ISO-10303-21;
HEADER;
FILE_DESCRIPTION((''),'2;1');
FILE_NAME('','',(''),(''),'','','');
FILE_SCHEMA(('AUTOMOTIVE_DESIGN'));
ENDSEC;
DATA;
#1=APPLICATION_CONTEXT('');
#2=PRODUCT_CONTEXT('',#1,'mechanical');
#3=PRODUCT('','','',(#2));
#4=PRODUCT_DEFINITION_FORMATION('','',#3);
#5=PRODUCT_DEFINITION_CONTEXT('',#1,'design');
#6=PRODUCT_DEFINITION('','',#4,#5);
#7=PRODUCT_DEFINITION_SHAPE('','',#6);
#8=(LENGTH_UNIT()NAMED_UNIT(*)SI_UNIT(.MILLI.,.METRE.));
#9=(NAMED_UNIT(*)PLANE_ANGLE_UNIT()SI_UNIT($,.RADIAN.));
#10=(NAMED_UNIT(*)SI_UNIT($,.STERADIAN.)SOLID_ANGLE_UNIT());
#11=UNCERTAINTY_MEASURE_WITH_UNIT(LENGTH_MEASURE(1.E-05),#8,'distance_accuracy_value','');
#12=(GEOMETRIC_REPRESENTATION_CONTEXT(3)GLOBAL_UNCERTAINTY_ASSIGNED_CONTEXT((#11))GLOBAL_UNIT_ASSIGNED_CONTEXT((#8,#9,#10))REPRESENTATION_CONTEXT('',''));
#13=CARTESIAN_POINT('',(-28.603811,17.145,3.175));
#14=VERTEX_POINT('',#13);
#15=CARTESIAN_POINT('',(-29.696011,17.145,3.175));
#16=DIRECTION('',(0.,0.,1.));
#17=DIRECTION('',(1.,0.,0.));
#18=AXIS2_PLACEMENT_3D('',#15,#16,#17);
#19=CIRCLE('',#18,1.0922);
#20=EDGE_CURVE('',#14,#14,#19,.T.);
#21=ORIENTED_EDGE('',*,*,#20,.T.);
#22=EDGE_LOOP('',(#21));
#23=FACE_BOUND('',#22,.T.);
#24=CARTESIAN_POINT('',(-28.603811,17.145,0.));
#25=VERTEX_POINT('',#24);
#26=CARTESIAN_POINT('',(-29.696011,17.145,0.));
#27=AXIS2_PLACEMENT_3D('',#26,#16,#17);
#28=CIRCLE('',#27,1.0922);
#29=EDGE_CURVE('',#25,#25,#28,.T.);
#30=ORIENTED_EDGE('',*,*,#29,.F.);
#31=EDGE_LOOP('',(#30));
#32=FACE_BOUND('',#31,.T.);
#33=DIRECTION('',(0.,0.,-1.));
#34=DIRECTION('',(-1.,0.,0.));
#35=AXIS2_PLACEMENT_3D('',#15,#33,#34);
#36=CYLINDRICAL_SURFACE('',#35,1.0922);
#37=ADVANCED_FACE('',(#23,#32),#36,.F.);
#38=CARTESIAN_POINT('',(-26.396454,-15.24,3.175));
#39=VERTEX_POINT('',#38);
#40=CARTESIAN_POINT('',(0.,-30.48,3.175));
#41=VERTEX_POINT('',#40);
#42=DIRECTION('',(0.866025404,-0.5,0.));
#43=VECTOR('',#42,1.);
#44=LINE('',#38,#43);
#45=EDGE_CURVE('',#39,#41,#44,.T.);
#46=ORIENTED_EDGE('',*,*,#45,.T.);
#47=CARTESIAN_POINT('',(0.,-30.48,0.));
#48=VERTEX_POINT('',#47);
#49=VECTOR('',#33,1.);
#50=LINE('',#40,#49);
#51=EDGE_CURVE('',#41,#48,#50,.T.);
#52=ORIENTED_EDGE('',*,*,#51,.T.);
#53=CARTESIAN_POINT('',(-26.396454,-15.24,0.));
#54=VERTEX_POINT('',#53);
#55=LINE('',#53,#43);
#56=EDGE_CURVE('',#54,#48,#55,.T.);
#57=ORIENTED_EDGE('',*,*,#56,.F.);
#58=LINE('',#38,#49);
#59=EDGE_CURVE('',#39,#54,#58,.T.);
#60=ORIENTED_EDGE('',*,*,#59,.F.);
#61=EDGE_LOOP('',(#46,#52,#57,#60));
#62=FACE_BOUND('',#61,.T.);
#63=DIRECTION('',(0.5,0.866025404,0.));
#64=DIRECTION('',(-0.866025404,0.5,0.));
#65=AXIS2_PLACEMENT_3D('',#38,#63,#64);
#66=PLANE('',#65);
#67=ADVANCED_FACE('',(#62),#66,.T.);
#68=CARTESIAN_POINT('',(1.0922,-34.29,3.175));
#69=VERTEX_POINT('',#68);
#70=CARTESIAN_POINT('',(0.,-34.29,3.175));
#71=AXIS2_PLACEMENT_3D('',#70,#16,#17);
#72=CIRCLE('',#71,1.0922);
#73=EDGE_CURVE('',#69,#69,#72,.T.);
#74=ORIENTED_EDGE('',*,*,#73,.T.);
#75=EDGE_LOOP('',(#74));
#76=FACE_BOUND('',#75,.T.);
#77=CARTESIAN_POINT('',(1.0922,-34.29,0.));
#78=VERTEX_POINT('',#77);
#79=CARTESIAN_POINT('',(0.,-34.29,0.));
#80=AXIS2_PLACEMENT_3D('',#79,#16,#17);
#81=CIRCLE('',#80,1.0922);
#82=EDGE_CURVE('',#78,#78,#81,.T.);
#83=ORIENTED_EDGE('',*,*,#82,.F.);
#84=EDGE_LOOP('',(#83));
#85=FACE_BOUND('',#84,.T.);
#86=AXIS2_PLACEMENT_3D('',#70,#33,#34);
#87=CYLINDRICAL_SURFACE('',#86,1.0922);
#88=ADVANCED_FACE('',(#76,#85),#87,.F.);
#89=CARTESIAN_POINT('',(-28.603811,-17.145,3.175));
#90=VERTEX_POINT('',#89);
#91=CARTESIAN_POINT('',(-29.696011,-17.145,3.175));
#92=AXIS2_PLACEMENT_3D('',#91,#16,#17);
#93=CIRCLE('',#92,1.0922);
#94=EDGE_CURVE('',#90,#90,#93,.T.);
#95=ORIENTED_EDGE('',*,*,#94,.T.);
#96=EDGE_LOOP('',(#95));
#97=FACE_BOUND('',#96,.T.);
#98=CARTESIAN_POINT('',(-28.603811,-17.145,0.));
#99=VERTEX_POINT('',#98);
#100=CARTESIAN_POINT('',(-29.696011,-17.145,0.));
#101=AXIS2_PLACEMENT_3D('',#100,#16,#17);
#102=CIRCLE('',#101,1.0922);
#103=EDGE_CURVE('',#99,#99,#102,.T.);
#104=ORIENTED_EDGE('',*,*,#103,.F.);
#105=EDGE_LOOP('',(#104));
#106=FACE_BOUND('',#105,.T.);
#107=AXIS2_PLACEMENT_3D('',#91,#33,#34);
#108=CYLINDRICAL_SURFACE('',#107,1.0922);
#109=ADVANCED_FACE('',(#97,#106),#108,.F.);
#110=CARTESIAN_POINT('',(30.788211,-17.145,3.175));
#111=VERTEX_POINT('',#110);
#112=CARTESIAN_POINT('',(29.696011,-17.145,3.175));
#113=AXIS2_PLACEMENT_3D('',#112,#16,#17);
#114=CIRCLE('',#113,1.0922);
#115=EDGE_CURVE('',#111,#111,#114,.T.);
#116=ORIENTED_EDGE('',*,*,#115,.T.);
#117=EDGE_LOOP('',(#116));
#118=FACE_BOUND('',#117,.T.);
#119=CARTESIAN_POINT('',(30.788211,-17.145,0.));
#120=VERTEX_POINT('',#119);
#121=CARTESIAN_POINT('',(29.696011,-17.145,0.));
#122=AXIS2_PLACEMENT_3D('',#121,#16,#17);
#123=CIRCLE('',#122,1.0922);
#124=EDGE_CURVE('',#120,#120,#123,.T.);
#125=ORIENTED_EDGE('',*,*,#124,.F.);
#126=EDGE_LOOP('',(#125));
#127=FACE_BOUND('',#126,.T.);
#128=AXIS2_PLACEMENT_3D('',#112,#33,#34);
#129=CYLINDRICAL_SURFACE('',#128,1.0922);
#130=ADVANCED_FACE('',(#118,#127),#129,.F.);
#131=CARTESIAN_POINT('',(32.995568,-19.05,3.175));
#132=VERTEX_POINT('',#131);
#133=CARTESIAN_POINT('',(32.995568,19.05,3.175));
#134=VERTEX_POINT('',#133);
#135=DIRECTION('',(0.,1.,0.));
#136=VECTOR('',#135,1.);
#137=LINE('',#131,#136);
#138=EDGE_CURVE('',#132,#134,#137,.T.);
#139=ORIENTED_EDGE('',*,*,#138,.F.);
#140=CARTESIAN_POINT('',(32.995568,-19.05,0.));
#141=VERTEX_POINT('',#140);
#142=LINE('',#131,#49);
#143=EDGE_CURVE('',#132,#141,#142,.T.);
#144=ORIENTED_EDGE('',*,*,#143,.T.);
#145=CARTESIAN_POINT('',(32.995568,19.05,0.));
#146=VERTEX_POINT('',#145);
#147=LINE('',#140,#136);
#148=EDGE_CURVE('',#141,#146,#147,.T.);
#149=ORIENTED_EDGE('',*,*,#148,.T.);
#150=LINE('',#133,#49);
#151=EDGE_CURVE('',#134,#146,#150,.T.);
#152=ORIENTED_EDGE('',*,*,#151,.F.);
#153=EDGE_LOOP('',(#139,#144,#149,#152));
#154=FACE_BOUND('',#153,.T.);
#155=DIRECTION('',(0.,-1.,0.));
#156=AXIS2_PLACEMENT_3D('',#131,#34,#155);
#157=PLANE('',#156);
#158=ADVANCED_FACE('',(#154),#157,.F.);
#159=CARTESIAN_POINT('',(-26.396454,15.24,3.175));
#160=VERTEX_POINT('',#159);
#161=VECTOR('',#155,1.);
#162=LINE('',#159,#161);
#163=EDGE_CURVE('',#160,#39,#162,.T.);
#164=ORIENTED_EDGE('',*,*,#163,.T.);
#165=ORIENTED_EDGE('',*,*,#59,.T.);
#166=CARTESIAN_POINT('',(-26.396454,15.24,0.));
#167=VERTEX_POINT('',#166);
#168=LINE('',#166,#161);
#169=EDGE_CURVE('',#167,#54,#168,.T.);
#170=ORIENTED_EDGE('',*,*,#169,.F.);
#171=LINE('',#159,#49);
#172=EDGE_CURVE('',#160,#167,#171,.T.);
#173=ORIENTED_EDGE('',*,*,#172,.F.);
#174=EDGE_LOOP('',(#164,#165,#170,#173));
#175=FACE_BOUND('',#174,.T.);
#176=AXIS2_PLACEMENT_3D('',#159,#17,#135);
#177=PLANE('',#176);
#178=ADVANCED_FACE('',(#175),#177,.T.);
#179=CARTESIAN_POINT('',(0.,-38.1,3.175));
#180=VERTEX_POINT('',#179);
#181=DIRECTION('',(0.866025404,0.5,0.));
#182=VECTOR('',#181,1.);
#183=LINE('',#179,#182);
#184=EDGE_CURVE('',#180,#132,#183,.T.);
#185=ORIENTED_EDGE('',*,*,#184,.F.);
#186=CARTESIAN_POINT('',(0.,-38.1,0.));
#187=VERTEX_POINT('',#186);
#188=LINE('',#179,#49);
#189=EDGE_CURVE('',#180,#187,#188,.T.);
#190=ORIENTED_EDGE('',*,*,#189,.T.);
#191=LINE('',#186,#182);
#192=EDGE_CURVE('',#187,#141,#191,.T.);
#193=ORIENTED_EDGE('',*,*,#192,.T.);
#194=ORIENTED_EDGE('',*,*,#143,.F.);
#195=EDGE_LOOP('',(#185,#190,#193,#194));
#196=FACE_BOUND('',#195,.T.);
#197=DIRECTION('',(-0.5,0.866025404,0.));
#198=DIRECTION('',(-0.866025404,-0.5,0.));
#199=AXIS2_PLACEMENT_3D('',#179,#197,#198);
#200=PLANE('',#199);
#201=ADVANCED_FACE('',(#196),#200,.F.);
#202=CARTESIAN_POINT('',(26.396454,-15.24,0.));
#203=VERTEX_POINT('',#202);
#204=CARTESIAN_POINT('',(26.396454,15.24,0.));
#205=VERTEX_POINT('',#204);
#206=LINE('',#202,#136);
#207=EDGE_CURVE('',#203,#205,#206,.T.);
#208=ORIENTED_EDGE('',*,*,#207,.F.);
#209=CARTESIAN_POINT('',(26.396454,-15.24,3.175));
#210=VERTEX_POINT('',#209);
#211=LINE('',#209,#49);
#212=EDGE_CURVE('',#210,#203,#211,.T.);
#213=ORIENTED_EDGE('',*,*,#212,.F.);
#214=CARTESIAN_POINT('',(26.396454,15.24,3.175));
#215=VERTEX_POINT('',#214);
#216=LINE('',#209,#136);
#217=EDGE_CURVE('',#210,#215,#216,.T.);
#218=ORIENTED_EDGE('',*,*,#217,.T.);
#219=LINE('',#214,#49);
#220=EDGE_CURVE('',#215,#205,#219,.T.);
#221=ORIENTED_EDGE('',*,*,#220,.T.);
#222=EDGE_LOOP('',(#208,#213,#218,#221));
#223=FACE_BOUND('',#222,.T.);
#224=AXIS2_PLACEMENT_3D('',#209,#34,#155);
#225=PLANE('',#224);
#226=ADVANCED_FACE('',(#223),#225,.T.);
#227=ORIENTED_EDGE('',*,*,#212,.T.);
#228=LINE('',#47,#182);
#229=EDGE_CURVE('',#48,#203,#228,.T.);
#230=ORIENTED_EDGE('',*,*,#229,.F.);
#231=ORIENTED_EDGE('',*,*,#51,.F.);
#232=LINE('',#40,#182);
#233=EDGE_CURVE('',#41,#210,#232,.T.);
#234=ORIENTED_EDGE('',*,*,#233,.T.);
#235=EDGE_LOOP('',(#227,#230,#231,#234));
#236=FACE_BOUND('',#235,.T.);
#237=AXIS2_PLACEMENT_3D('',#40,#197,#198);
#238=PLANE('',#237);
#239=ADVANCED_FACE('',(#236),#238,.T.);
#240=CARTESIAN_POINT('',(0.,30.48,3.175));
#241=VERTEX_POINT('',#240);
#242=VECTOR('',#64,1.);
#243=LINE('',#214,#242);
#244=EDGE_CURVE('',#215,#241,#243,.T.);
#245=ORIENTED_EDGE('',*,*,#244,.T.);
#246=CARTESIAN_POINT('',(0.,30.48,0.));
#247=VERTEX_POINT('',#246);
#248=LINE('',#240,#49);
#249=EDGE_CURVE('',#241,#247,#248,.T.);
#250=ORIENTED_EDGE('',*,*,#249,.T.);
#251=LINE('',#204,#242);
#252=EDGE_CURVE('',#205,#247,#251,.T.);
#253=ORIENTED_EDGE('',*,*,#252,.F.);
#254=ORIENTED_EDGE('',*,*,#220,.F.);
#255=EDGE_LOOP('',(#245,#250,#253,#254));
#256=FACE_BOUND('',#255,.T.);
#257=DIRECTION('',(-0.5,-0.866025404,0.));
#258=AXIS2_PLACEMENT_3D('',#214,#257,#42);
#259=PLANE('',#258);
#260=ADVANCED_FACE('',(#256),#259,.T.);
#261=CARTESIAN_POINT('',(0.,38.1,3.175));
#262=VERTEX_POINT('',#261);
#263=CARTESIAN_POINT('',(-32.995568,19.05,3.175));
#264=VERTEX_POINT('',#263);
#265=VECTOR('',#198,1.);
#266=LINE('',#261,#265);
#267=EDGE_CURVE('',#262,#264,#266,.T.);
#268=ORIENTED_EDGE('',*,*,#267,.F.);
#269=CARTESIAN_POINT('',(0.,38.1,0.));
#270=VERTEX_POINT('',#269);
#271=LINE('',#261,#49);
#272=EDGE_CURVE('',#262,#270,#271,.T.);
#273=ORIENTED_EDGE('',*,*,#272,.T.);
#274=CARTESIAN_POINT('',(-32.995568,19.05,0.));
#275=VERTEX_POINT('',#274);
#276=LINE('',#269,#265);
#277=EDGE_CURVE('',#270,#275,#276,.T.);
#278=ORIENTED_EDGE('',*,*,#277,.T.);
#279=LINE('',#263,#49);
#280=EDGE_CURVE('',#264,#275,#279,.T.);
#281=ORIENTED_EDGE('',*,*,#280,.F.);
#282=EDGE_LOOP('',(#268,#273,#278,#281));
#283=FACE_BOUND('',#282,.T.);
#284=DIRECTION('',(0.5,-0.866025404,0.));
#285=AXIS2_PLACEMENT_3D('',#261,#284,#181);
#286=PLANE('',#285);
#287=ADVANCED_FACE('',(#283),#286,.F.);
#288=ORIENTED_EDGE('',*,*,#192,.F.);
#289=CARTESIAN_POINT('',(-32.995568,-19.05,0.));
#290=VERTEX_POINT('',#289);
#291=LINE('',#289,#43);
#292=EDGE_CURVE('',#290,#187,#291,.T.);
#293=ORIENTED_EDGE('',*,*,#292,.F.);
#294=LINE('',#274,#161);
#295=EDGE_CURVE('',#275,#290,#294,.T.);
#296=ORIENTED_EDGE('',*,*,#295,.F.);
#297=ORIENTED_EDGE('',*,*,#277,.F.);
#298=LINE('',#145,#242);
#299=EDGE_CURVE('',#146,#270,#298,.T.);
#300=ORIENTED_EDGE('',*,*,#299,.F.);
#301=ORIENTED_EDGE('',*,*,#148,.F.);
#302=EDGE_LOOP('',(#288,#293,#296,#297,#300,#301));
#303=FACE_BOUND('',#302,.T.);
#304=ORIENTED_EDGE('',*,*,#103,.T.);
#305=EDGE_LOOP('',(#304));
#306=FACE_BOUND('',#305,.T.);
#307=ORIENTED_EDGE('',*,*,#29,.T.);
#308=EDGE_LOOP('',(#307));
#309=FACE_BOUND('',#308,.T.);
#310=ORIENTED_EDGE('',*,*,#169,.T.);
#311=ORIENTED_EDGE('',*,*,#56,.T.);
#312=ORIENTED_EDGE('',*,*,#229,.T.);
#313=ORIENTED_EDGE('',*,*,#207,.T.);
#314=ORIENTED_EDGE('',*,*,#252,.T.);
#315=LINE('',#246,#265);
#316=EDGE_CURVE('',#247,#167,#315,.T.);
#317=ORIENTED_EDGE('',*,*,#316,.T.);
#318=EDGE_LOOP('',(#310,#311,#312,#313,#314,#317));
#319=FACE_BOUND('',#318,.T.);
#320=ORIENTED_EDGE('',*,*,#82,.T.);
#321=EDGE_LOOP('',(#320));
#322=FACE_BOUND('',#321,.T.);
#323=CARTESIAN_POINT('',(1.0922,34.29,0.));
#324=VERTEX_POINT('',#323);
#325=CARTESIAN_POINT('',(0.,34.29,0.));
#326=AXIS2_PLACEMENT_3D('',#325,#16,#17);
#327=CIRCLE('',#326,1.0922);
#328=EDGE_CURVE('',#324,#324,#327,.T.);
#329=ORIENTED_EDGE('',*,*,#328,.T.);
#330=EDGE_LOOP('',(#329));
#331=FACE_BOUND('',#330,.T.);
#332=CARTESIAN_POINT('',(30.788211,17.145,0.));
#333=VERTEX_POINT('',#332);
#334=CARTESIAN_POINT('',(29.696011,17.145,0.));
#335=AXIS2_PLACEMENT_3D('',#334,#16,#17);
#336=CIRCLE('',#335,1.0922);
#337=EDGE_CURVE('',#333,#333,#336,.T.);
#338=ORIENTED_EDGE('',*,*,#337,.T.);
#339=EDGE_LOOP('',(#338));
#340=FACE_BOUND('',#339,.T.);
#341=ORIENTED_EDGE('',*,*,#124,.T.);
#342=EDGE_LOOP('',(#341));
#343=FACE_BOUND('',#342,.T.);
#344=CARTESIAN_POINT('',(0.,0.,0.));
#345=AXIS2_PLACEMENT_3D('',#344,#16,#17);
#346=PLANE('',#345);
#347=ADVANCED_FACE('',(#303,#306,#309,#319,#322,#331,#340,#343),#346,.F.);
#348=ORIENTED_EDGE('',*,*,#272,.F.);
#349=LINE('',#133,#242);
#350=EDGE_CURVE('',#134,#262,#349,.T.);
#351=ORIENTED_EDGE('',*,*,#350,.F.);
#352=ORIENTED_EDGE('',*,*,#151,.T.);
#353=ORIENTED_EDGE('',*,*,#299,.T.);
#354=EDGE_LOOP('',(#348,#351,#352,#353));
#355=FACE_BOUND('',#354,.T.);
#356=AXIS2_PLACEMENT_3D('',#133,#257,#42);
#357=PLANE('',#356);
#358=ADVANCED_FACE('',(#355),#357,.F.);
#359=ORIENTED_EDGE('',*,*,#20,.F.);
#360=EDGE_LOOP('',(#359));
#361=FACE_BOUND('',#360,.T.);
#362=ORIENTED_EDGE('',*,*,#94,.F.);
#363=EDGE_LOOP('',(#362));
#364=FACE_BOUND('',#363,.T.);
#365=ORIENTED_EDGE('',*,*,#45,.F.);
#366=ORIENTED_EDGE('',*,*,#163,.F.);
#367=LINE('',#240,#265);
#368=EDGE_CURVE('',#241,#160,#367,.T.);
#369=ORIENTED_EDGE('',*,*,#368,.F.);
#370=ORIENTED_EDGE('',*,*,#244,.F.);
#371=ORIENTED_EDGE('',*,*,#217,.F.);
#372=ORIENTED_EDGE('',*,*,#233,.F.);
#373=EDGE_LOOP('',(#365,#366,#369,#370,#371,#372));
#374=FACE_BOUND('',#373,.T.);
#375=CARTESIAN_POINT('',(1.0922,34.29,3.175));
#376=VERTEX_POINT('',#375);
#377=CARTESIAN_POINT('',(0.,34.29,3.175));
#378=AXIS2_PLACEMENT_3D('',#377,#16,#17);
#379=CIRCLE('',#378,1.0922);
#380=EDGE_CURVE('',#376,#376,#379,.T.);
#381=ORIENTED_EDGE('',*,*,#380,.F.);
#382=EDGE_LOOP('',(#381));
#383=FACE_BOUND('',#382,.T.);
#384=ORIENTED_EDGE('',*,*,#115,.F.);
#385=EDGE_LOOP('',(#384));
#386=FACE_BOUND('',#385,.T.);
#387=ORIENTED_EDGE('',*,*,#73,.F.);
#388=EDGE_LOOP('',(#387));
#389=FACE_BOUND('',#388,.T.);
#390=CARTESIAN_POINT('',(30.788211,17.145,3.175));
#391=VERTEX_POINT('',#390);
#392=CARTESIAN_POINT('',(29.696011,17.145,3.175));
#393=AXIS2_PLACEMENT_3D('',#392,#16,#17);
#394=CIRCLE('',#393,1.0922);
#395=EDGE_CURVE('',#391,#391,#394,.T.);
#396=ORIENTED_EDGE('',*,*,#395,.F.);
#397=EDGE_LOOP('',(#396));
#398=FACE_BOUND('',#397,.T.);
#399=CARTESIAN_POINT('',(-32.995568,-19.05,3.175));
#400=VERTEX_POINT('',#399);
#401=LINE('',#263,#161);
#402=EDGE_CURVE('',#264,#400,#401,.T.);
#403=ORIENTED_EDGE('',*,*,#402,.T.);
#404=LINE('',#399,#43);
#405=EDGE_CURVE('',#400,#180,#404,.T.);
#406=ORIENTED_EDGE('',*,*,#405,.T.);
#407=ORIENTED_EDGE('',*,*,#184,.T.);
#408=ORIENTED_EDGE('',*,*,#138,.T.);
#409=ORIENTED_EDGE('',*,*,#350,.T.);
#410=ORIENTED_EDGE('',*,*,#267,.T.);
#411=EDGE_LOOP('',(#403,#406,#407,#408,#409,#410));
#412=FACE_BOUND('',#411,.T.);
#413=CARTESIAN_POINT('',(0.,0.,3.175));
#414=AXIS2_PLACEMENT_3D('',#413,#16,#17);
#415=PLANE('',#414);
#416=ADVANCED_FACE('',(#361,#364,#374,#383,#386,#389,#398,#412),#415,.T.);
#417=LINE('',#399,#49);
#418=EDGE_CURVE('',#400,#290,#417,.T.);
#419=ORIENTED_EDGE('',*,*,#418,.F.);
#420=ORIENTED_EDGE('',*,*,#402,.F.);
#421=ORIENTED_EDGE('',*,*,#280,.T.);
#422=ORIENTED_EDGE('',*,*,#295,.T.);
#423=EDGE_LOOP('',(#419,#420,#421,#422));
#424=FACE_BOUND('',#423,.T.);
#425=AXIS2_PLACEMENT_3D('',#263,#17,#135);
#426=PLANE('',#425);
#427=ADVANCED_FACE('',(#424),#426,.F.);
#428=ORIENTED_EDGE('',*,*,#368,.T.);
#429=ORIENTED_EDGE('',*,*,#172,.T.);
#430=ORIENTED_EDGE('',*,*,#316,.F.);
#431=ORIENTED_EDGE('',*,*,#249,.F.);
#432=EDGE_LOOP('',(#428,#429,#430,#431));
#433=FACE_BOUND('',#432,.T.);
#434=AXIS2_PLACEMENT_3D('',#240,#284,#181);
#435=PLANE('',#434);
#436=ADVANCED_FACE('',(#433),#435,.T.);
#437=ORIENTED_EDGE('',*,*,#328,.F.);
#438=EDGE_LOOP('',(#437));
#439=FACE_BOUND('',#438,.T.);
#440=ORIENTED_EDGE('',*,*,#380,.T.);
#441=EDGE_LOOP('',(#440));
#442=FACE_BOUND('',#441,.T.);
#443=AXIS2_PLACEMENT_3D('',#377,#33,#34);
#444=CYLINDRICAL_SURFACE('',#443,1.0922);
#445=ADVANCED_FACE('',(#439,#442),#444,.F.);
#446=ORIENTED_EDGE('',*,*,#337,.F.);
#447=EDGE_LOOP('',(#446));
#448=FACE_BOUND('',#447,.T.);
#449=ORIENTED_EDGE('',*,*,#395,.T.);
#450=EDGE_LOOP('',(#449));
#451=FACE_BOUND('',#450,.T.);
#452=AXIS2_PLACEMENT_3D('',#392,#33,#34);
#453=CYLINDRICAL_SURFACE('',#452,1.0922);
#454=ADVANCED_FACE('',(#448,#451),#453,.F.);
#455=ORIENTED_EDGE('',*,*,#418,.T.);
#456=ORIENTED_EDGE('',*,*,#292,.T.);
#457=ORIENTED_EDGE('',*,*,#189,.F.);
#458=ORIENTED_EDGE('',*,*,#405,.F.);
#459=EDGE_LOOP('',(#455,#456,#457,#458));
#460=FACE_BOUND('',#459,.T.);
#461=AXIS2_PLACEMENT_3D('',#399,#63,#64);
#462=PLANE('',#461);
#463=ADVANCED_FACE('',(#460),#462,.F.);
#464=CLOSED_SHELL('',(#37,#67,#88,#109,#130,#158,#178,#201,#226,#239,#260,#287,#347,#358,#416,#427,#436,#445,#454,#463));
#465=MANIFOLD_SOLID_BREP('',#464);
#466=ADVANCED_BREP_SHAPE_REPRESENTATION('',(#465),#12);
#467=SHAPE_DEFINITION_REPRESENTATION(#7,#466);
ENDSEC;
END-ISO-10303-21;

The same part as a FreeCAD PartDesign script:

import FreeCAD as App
import Part
import Sketcher

V = App.Vector
Q = App.Units.Quantity

doc = App.newDocument("Part")
body = doc.addObject("PartDesign::Body", "Body")

# Sketch on XY plane
sketch1 = body.newObject("Sketcher::SketchObject", "Sketch")
sketch1.AttachmentSupport = (doc.getObject("XY_Plane"), [""])
sketch1.MapMode = "FlatFace"
sketch1.addGeometry([
    Part.LineSegment(V(33, 19.1, 0), V(0, 38.1, 0)),  # 0
    Part.LineSegment(V(0, 38.1, 0), V(-33, 19.1, 0)),  # 1
    Part.LineSegment(V(-33, 19.1, 0), V(-33, -19.1, 0)),  # 2
    Part.LineSegment(V(-33, -19.1, 0), V(0, -38.1, 0)),  # 3
    Part.LineSegment(V(0, -38.1, 0), V(33, -19.1, 0)),  # 4
    Part.LineSegment(V(33, -19.1, 0), V(33, 19.1, 0)),  # 5
    Part.Circle(V(0, -34.3, 0), V(0, 0, 1), 1.1),  # 6
    Part.Circle(V(-29.7, -17.1, 0), V(0, 0, 1), 1.1),  # 7
    Part.Circle(V(29.7, -17.1, 0), V(0, 0, 1), 1.1),  # 8
    Part.Circle(V(-29.7, 17.1, 0), V(0, 0, 1), 1.1),  # 9
    Part.LineSegment(V(0, 30.5, 0), V(26.4, 15.2, 0)),  # 10
    Part.LineSegment(V(26.4, 15.2, 0), V(26.4, -15.2, 0)),  # 11
    Part.LineSegment(V(26.4, -15.2, 0), V(0, -30.5, 0)),  # 12
    Part.LineSegment(V(0, -30.5, 0), V(-26.4, -15.2, 0)),  # 13
    Part.LineSegment(V(-26.4, -15.2, 0), V(-26.4, 15.2, 0)),  # 14
    Part.LineSegment(V(-26.4, 15.2, 0), V(0, 30.5, 0)),  # 15
    Part.Circle(V(0, 34.3, 0), V(0, 0, 1), 1.1),  # 16
    Part.Circle(V(29.7, 17.1, 0), V(0, 0, 1), 1.1),  # 17
], False)
sketch1.addConstraint([
    Sketcher.Constraint("Coincident", 0, 2, 1, 1),
    Sketcher.Constraint("Coincident", 1, 2, 2, 1),
    Sketcher.Constraint("Coincident", 2, 2, 3, 1),
    Sketcher.Constraint("Coincident", 3, 2, 4, 1),
    Sketcher.Constraint("Coincident", 4, 2, 5, 1),
    Sketcher.Constraint("Coincident", 5, 2, 0, 1),
    Sketcher.Constraint("Coincident", 10, 2, 11, 1),
    Sketcher.Constraint("Coincident", 11, 2, 12, 1),
    Sketcher.Constraint("Coincident", 12, 2, 13, 1),
    Sketcher.Constraint("Coincident", 13, 2, 14, 1),
    Sketcher.Constraint("Coincident", 14, 2, 15, 1),
    Sketcher.Constraint("Coincident", 15, 2, 10, 1),
    Sketcher.Constraint("Vertical", 2),
    Sketcher.Constraint("Vertical", 5),
    Sketcher.Constraint("Vertical", 11),
    Sketcher.Constraint("Vertical", 14),
    Sketcher.Constraint("Equal", 6, 7),
    Sketcher.Constraint("Equal", 7, 8),
    Sketcher.Constraint("Equal", 8, 9),
    Sketcher.Constraint("Equal", 9, 16),
    Sketcher.Constraint("Equal", 16, 17),
    Sketcher.Constraint("Symmetric", 8, 3, 9, 3, -1, 1),
    Sketcher.Constraint("Symmetric", 6, 3, 16, 3, -1, 1),
    Sketcher.Constraint("Symmetric", 7, 3, 17, 3, -1, 1),
    Sketcher.Constraint("Symmetric", 0, 2, 3, 2, -1, 1),
    Sketcher.Constraint("Symmetric", 1, 2, 4, 2, -1, 1),
    Sketcher.Constraint("Symmetric", 10, 2, 13, 2, -1, 1),
    Sketcher.Constraint("Symmetric", 12, 2, 15, 2, -1, 1),
    Sketcher.Constraint("Symmetric", 7, 3, 8, 3, -2),
    Sketcher.Constraint("PointOnObject", 6, 3, -2),
    Sketcher.Constraint("PointOnObject", 0, 2, -2),
    Sketcher.Constraint("PointOnObject", 12, 2, -2),
    Sketcher.Constraint("Parallel", 0, 3),
    Sketcher.Constraint("Parallel", 3, 10),
    Sketcher.Constraint("Parallel", 4, 12),
    Sketcher.Constraint("Parallel", 12, 15),
    Sketcher.Constraint("Horizontal", 2, 2, 4, 2),
    Sketcher.Constraint("Diameter", 6, Q("0.086 in")),
    Sketcher.Constraint("DistanceY", 2, 2, 2, 1, Q("1.5 in")),
    Sketcher.Constraint("DistanceY", 11, 2, 11, 1, Q("1.2 in")),
    Sketcher.Constraint("Angle", 0, Q("150 deg")),
    Sketcher.Constraint("Distance", 0, Q("1.5 in")),
    Sketcher.Constraint("Distance", 10, Q("1.2 in")),
    Sketcher.Constraint("DistanceY", 6, 3, 16, 3, Q("2.7 in")),
    Sketcher.Constraint("DistanceY", 7, 3, 9, 3, Q("1.35 in")),
    Sketcher.Constraint("DistanceX", 7, 3, -1, 1, Q("29.696011 mm")),
])
pad1 = body.newObject("PartDesign::Pad", "Pad")
pad1.Profile = sketch1
pad1.Length = Q("0.125 in")

doc.recompute()
